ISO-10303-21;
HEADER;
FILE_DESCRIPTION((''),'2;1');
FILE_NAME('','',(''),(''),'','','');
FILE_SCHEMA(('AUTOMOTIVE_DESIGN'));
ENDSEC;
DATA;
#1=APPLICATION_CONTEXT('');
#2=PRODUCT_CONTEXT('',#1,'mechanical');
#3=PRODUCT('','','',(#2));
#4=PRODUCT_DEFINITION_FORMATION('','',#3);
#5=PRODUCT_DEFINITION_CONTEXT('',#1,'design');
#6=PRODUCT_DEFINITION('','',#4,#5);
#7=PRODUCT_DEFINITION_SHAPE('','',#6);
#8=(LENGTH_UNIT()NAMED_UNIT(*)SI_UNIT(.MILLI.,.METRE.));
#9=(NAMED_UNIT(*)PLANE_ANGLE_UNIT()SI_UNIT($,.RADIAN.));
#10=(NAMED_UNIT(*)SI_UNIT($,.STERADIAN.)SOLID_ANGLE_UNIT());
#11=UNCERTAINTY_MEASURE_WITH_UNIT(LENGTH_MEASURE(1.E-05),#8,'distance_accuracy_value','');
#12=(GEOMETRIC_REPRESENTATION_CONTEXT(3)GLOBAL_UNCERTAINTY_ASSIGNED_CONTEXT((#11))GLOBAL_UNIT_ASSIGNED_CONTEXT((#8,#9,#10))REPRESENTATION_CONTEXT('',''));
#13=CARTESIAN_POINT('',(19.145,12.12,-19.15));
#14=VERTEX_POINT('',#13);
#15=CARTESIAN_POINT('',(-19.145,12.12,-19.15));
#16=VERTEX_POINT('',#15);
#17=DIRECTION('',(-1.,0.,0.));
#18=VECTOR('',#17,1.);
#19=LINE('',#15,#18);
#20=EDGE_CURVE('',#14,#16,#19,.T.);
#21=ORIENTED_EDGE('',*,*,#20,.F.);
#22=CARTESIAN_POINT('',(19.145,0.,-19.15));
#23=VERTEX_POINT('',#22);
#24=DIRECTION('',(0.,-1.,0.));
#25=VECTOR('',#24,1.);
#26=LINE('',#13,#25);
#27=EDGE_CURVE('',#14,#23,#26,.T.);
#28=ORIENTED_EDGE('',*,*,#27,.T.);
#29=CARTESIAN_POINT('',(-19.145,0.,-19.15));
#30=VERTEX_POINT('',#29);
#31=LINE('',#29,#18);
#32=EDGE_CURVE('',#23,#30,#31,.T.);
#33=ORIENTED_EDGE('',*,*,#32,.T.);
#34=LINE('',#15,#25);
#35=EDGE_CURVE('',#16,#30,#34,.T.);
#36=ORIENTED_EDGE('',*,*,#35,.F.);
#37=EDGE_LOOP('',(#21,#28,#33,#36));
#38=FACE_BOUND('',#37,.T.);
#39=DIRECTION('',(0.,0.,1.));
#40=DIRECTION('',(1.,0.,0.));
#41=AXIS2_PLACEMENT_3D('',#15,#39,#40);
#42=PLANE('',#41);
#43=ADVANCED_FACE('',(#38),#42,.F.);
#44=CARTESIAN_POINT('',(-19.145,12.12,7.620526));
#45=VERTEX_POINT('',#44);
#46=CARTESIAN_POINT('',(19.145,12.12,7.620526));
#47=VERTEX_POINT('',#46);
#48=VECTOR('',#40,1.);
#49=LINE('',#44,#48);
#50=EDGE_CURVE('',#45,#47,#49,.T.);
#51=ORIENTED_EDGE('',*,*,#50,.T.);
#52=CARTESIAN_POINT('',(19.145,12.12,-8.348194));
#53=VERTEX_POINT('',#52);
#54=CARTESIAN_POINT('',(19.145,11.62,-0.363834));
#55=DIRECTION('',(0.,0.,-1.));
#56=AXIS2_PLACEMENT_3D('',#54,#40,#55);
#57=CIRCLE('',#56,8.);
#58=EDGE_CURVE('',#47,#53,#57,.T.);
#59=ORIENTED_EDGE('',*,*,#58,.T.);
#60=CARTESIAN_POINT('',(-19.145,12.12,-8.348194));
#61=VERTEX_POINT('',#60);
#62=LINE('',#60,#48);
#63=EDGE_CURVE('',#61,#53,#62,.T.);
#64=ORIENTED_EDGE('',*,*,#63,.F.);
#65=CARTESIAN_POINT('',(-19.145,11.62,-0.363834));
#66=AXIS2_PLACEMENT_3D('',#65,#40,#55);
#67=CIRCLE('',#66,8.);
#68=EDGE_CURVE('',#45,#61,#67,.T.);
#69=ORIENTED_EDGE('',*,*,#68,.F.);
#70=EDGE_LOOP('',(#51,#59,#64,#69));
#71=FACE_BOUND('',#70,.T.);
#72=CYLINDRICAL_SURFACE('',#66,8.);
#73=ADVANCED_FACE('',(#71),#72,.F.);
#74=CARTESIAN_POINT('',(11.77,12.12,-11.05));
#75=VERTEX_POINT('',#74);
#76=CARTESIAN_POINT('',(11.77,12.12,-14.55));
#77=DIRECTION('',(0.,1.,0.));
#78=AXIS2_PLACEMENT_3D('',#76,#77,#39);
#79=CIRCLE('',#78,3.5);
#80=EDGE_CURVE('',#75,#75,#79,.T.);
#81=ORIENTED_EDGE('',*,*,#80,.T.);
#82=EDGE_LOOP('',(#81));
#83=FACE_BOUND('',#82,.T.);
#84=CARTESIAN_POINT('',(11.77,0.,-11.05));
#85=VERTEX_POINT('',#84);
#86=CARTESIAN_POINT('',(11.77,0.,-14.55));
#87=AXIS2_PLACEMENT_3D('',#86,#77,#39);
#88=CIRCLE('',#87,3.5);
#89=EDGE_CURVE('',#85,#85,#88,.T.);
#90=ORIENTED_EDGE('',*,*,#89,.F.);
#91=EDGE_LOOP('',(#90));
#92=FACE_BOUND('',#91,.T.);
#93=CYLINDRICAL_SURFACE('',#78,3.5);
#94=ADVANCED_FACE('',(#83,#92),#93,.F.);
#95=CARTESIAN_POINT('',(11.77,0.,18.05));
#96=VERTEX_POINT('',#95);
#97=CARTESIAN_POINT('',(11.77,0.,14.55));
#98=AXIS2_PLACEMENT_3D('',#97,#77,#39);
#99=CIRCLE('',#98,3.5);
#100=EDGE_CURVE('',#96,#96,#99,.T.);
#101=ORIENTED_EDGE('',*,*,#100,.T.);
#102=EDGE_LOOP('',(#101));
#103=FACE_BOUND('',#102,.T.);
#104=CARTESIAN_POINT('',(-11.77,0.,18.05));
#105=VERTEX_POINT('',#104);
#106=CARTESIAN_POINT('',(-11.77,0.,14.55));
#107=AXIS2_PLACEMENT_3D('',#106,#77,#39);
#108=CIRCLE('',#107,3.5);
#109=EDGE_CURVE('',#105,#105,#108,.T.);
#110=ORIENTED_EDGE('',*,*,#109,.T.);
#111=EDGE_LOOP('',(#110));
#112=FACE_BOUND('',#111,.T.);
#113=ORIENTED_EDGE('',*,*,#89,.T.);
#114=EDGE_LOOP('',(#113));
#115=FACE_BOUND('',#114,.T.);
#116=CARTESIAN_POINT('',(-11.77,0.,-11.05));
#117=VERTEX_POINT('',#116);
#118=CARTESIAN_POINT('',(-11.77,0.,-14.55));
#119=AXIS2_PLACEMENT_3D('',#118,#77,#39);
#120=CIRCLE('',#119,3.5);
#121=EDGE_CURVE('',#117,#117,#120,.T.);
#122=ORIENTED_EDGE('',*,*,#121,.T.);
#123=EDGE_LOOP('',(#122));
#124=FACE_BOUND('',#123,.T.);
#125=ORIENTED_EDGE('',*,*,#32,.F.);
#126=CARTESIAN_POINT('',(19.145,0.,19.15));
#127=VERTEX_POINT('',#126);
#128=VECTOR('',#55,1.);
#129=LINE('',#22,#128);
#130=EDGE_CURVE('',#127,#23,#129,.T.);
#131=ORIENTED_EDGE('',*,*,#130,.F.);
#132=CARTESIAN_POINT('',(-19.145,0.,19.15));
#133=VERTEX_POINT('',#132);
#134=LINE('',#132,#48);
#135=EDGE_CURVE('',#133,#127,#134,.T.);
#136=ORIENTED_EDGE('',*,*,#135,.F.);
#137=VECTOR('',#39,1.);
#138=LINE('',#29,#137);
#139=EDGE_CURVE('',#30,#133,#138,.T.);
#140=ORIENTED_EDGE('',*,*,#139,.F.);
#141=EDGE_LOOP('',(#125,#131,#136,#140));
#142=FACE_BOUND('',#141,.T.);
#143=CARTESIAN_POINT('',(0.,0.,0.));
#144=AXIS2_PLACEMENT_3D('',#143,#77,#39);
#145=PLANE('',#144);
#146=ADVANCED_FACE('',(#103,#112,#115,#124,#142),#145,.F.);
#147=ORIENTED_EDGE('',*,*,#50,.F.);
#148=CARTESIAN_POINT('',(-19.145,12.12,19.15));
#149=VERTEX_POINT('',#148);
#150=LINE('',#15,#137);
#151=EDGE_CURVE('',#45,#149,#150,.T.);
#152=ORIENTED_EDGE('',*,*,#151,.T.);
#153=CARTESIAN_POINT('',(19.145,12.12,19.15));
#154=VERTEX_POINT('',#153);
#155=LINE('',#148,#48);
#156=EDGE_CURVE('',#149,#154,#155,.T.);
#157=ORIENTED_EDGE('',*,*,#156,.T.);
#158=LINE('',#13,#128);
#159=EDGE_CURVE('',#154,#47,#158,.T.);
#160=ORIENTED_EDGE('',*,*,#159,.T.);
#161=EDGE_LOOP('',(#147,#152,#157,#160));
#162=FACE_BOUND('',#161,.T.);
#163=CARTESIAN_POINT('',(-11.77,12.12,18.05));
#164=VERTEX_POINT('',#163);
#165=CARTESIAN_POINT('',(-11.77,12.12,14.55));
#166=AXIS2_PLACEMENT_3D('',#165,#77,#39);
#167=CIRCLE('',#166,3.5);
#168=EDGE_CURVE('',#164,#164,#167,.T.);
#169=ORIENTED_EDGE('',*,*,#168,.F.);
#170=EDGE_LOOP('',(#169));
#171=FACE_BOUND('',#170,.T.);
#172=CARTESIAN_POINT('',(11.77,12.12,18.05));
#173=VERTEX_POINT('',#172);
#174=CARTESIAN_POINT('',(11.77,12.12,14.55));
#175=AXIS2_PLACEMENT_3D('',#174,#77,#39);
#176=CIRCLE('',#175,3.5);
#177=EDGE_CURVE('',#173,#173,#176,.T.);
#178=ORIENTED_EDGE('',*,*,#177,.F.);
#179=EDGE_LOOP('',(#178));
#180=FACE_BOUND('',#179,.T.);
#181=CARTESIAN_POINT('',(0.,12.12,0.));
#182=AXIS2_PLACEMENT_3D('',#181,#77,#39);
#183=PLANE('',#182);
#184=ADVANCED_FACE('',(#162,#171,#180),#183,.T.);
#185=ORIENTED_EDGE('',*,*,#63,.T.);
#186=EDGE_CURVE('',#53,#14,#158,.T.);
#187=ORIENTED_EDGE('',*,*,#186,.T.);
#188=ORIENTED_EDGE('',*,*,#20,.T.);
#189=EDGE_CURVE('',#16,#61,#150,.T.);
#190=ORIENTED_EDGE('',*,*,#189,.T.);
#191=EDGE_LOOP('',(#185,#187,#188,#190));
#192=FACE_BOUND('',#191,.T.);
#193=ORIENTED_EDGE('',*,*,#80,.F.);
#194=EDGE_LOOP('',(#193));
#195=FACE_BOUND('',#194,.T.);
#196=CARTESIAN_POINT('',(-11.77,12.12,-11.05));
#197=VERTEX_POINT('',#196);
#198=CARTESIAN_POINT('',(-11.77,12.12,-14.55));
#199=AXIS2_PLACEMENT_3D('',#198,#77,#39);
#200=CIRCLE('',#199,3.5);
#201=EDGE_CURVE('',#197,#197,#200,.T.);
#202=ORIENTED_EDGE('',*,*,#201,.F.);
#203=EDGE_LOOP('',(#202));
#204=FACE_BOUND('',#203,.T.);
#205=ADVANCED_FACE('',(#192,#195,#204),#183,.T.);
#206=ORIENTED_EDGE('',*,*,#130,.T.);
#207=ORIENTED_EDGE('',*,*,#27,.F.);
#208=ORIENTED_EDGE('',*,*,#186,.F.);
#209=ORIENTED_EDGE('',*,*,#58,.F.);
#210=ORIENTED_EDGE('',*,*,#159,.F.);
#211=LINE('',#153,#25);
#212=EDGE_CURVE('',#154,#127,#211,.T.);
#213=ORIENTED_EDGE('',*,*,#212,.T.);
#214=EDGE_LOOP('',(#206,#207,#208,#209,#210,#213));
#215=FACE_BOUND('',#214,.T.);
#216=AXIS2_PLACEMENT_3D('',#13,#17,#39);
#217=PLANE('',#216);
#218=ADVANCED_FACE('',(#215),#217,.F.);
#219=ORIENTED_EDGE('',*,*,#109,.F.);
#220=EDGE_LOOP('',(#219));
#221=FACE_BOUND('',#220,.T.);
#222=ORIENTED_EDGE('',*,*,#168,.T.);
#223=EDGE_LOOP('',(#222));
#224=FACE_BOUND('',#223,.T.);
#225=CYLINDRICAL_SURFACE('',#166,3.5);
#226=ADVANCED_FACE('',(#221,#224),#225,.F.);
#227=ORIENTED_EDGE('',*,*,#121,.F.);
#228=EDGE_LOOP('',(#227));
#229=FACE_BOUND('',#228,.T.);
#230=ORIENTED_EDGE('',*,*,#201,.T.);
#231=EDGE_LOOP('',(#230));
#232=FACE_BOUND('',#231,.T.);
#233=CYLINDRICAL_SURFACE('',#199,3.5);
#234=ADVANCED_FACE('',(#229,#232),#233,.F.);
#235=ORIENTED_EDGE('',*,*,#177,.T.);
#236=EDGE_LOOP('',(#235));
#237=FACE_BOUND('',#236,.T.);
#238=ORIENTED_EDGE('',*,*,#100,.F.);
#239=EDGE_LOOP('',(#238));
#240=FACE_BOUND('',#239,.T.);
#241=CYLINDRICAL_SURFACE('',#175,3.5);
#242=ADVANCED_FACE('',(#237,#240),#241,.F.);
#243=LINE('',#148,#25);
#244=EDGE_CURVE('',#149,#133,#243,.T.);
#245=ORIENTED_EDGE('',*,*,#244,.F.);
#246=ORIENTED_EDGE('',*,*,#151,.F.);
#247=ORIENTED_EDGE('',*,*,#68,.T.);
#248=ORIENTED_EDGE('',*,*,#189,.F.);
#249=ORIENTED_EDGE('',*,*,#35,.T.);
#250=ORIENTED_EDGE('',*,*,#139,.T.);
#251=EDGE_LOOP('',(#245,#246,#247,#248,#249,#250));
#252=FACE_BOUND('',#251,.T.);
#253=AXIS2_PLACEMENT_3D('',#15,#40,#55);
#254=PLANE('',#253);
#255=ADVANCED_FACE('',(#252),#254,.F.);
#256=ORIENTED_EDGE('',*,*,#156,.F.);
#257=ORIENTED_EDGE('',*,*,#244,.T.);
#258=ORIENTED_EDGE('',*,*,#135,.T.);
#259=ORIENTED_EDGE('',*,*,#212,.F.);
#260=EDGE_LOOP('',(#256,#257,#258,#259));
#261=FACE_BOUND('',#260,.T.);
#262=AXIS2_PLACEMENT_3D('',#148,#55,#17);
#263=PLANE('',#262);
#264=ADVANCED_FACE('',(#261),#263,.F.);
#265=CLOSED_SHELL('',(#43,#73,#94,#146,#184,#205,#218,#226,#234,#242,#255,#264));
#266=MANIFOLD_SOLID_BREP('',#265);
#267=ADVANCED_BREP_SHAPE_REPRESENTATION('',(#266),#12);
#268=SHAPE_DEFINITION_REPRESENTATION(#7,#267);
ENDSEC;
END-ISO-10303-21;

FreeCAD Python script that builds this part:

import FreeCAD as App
import Part
import Sketcher
Q = App.Units.Quantity

doc = App.newDocument("Part")
params = doc.addObject("Spreadsheet::Sheet", "Params")
for row, (alias, value) in enumerate([
    ("sketch1_height", "38.3 mm"),
    ("sketch1_width", "38.29 mm"),
    ("pad1_length", "12.12 mm"),
    ("sketch2_diameter", "16 mm"),
    ("sketch3_diameter", "7 mm"),
    ("hole_diameter", "7 mm"),
    ("sketch4_diameter", "7 mm"),
    ("hole2_diameter", "7 mm"),
], start=1):
    params.set(f"A{row}", alias)
    params.set(f"B{row}", "=" + value)
    params.setAlias(f"B{row}", alias)

body = doc.addObject("PartDesign::Body", "Body")

# Sketch on XZ plane
sketch1 = body.newObject("Sketcher::SketchObject", "Sketch")
sketch1.AttachmentSupport = (doc.getObject("XZ_Plane"), [""])
sketch1.MapMode = "FlatFace"
sketch1.addGeometry([
    Part.LineSegment(App.Vector(-19, -19, 0), App.Vector(-19, 19, 0)),
    Part.LineSegment(App.Vector(-19, 19, 0), App.Vector(19, 19, 0)),
    Part.LineSegment(App.Vector(19, 19, 0), App.Vector(19, -19, 0)),
    Part.LineSegment(App.Vector(19, -19, 0), App.Vector(-19, -19, 0)),
], False)
sketch1.addConstraint([
    Sketcher.Constraint("Coincident", 0, 2, 1, 1),
    Sketcher.Constraint("Coincident", 1, 2, 2, 1),
    Sketcher.Constraint("Coincident", 2, 2, 3, 1),
    Sketcher.Constraint("Coincident", 3, 2, 0, 1),
    Sketcher.Constraint("Vertical", 0),
    Sketcher.Constraint("Horizontal", 1),
    Sketcher.Constraint("Vertical", 2),
    Sketcher.Constraint("Horizontal", 3),
    Sketcher.Constraint("Symmetric", 0, 2, 2, 2, -1, 1),
    Sketcher.Constraint("DistanceY", 0, 1, 0, 2, Q("38.3 mm")),
    Sketcher.Constraint("DistanceX", 1, 1, 1, 2, Q("38.29 mm")),
])
sketch1.setExpression("Constraints[9]", "Params.sketch1_height")
sketch1.setExpression("Constraints[10]", "Params.sketch1_width")
pad1 = body.newObject("PartDesign::Pad", "Pad")
pad1.Profile = sketch1
pad1.setExpression("Length", "Params.pad1_length")
pad1.Reversed = True

# Sketch on YZ plane
sketch2 = body.newObject("Sketcher::SketchObject", "Sketch001")
sketch2.AttachmentSupport = (doc.getObject("YZ_Plane"), [""])
sketch2.MapMode = "FlatFace"
sketch2.AttachmentOffset = App.Placement(App.Vector(0, 0, 19.145), App.Rotation())
sketch2.addGeometry(Part.Circle(App.Vector(12, 0, 0), App.Vector(0, 0, 1), 8), False)
sketch2.addConstraint([
    Sketcher.Constraint("Diameter", 0, Q("16 mm")),
    Sketcher.Constraint("DistanceX", -1, 1, 0, 3, Q("11.62 mm")),
    Sketcher.Constraint("DistanceY", 0, 3, -1, 1, Q("0.363834 mm")),
])
sketch2.setExpression("Constraints[0]", "Params.sketch2_diameter")
pocket1 = body.newObject("PartDesign::Pocket", "Pocket")
pocket1.Profile = sketch2
pocket1.Type = "ThroughAll"

# Sketch on XZ plane
sketch3 = body.newObject("Sketcher::SketchObject", "Sketch002")
sketch3.AttachmentSupport = (doc.getObject("XZ_Plane"), [""])
sketch3.MapMode = "FlatFace"
sketch3.AttachmentOffset = App.Placement(App.Vector(0, 0, -12.12), App.Rotation())
sketch3.addGeometry([
    Part.Circle(App.Vector(-11.8, -14.6, 0), App.Vector(0, 0, 1), 3.5),
    Part.Circle(App.Vector(11.8, -14.6, 0), App.Vector(0, 0, 1), 3.5),
    Part.Circle(App.Vector(-11.8, 14.6, 0), App.Vector(0, 0, 1), 3.5),
    Part.Circle(App.Vector(11.8, 14.6, 0), App.Vector(0, 0, 1), 3.5),
], False)
sketch3.addConstraint([
    Sketcher.Constraint("Equal", 0, 1),
    Sketcher.Constraint("Equal", 1, 2),
    Sketcher.Constraint("Equal", 2, 3),
    Sketcher.Constraint("Symmetric", 1, 3, 2, 3, -1, 1),
    Sketcher.Constraint("Symmetric", 0, 3, 3, 3, -1, 1),
    Sketcher.Constraint("Symmetric", 0, 3, 1, 3, -2),
    Sketcher.Constraint("Diameter", 0, Q("7 mm")),
    Sketcher.Constraint("DistanceY", 0, 3, 2, 3, Q("29.1 mm")),
    Sketcher.Constraint("DistanceX", 0, 3, -1, 1, Q("11.77 mm")),
])
sketch3.setExpression("Constraints[6]", "Params.sketch3_diameter")
doc.recompute()
hole = body.newObject("PartDesign::Hole", "Hole")
hole.Profile = sketch3
hole.ThreadType = "None"
hole.setExpression("Diameter", "Params.hole_diameter")
hole.DepthType = "ThroughAll"
hole.Reversed = True
doc.recompute()

mirrored = body.newObject("PartDesign::Mirrored", "Mirrored")
mirrored.Originals = [hole]
mirrored.MirrorPlane = (doc.getObject("XY_Plane"), [""])
body.Tip = mirrored
doc.recompute()

mirrored2 = body.newObject("PartDesign::Mirrored", "Mirrored001")
mirrored2.Originals = [hole]
mirrored2.MirrorPlane = (doc.getObject("YZ_Plane"), [""])
body.Tip = mirrored2

# Sketch on XZ plane
sketch4 = body.newObject("Sketcher::SketchObject", "Sketch003")
sketch4.AttachmentSupport = (doc.getObject("XZ_Plane"), [""])
sketch4.MapMode = "FlatFace"
sketch4.AttachmentOffset = App.Placement(App.Vector(0, 0, -12.12), App.Rotation())
sketch4.addGeometry([
    Part.Circle(App.Vector(11.8, 14.6, 0), App.Vector(0, 0, 1), 3.5),
    Part.Circle(App.Vector(-11.8, 14.6, 0), App.Vector(0, 0, 1), 3.5),
    Part.Circle(App.Vector(11.8, -14.6, 0), App.Vector(0, 0, 1), 3.5),
    Part.Circle(App.Vector(-11.8, -14.6, 0), App.Vector(0, 0, 1), 3.5),
], False)
sketch4.addConstraint([
    Sketcher.Constraint("Equal", 0, 1),
    Sketcher.Constraint("Equal", 1, 2),
    Sketcher.Constraint("Equal", 2, 3),
    Sketcher.Constraint("Symmetric", 1, 3, 2, 3, -1, 1),
    Sketcher.Constraint("Symmetric", 0, 3, 3, 3, -1, 1),
    Sketcher.Constraint("Symmetric", 0, 3, 1, 3, -2),
    Sketcher.Constraint("Diameter", 0, Q("7 mm")),
    Sketcher.Constraint("DistanceY", 2, 3, 0, 3, Q("29.1 mm")),
    Sketcher.Constraint("DistanceX", -1, 1, 0, 3, Q("11.77 mm")),
])
sketch4.setExpression("Constraints[6]", "Params.sketch4_diameter")
doc.recompute()
hole2 = body.newObject("PartDesign::Hole", "Hole001")
hole2.Profile = sketch4
hole2.ThreadType = "None"
hole2.setExpression("Diameter", "Params.hole2_diameter")
hole2.DepthType = "ThroughAll"
hole2.Reversed = True

doc.recompute()
